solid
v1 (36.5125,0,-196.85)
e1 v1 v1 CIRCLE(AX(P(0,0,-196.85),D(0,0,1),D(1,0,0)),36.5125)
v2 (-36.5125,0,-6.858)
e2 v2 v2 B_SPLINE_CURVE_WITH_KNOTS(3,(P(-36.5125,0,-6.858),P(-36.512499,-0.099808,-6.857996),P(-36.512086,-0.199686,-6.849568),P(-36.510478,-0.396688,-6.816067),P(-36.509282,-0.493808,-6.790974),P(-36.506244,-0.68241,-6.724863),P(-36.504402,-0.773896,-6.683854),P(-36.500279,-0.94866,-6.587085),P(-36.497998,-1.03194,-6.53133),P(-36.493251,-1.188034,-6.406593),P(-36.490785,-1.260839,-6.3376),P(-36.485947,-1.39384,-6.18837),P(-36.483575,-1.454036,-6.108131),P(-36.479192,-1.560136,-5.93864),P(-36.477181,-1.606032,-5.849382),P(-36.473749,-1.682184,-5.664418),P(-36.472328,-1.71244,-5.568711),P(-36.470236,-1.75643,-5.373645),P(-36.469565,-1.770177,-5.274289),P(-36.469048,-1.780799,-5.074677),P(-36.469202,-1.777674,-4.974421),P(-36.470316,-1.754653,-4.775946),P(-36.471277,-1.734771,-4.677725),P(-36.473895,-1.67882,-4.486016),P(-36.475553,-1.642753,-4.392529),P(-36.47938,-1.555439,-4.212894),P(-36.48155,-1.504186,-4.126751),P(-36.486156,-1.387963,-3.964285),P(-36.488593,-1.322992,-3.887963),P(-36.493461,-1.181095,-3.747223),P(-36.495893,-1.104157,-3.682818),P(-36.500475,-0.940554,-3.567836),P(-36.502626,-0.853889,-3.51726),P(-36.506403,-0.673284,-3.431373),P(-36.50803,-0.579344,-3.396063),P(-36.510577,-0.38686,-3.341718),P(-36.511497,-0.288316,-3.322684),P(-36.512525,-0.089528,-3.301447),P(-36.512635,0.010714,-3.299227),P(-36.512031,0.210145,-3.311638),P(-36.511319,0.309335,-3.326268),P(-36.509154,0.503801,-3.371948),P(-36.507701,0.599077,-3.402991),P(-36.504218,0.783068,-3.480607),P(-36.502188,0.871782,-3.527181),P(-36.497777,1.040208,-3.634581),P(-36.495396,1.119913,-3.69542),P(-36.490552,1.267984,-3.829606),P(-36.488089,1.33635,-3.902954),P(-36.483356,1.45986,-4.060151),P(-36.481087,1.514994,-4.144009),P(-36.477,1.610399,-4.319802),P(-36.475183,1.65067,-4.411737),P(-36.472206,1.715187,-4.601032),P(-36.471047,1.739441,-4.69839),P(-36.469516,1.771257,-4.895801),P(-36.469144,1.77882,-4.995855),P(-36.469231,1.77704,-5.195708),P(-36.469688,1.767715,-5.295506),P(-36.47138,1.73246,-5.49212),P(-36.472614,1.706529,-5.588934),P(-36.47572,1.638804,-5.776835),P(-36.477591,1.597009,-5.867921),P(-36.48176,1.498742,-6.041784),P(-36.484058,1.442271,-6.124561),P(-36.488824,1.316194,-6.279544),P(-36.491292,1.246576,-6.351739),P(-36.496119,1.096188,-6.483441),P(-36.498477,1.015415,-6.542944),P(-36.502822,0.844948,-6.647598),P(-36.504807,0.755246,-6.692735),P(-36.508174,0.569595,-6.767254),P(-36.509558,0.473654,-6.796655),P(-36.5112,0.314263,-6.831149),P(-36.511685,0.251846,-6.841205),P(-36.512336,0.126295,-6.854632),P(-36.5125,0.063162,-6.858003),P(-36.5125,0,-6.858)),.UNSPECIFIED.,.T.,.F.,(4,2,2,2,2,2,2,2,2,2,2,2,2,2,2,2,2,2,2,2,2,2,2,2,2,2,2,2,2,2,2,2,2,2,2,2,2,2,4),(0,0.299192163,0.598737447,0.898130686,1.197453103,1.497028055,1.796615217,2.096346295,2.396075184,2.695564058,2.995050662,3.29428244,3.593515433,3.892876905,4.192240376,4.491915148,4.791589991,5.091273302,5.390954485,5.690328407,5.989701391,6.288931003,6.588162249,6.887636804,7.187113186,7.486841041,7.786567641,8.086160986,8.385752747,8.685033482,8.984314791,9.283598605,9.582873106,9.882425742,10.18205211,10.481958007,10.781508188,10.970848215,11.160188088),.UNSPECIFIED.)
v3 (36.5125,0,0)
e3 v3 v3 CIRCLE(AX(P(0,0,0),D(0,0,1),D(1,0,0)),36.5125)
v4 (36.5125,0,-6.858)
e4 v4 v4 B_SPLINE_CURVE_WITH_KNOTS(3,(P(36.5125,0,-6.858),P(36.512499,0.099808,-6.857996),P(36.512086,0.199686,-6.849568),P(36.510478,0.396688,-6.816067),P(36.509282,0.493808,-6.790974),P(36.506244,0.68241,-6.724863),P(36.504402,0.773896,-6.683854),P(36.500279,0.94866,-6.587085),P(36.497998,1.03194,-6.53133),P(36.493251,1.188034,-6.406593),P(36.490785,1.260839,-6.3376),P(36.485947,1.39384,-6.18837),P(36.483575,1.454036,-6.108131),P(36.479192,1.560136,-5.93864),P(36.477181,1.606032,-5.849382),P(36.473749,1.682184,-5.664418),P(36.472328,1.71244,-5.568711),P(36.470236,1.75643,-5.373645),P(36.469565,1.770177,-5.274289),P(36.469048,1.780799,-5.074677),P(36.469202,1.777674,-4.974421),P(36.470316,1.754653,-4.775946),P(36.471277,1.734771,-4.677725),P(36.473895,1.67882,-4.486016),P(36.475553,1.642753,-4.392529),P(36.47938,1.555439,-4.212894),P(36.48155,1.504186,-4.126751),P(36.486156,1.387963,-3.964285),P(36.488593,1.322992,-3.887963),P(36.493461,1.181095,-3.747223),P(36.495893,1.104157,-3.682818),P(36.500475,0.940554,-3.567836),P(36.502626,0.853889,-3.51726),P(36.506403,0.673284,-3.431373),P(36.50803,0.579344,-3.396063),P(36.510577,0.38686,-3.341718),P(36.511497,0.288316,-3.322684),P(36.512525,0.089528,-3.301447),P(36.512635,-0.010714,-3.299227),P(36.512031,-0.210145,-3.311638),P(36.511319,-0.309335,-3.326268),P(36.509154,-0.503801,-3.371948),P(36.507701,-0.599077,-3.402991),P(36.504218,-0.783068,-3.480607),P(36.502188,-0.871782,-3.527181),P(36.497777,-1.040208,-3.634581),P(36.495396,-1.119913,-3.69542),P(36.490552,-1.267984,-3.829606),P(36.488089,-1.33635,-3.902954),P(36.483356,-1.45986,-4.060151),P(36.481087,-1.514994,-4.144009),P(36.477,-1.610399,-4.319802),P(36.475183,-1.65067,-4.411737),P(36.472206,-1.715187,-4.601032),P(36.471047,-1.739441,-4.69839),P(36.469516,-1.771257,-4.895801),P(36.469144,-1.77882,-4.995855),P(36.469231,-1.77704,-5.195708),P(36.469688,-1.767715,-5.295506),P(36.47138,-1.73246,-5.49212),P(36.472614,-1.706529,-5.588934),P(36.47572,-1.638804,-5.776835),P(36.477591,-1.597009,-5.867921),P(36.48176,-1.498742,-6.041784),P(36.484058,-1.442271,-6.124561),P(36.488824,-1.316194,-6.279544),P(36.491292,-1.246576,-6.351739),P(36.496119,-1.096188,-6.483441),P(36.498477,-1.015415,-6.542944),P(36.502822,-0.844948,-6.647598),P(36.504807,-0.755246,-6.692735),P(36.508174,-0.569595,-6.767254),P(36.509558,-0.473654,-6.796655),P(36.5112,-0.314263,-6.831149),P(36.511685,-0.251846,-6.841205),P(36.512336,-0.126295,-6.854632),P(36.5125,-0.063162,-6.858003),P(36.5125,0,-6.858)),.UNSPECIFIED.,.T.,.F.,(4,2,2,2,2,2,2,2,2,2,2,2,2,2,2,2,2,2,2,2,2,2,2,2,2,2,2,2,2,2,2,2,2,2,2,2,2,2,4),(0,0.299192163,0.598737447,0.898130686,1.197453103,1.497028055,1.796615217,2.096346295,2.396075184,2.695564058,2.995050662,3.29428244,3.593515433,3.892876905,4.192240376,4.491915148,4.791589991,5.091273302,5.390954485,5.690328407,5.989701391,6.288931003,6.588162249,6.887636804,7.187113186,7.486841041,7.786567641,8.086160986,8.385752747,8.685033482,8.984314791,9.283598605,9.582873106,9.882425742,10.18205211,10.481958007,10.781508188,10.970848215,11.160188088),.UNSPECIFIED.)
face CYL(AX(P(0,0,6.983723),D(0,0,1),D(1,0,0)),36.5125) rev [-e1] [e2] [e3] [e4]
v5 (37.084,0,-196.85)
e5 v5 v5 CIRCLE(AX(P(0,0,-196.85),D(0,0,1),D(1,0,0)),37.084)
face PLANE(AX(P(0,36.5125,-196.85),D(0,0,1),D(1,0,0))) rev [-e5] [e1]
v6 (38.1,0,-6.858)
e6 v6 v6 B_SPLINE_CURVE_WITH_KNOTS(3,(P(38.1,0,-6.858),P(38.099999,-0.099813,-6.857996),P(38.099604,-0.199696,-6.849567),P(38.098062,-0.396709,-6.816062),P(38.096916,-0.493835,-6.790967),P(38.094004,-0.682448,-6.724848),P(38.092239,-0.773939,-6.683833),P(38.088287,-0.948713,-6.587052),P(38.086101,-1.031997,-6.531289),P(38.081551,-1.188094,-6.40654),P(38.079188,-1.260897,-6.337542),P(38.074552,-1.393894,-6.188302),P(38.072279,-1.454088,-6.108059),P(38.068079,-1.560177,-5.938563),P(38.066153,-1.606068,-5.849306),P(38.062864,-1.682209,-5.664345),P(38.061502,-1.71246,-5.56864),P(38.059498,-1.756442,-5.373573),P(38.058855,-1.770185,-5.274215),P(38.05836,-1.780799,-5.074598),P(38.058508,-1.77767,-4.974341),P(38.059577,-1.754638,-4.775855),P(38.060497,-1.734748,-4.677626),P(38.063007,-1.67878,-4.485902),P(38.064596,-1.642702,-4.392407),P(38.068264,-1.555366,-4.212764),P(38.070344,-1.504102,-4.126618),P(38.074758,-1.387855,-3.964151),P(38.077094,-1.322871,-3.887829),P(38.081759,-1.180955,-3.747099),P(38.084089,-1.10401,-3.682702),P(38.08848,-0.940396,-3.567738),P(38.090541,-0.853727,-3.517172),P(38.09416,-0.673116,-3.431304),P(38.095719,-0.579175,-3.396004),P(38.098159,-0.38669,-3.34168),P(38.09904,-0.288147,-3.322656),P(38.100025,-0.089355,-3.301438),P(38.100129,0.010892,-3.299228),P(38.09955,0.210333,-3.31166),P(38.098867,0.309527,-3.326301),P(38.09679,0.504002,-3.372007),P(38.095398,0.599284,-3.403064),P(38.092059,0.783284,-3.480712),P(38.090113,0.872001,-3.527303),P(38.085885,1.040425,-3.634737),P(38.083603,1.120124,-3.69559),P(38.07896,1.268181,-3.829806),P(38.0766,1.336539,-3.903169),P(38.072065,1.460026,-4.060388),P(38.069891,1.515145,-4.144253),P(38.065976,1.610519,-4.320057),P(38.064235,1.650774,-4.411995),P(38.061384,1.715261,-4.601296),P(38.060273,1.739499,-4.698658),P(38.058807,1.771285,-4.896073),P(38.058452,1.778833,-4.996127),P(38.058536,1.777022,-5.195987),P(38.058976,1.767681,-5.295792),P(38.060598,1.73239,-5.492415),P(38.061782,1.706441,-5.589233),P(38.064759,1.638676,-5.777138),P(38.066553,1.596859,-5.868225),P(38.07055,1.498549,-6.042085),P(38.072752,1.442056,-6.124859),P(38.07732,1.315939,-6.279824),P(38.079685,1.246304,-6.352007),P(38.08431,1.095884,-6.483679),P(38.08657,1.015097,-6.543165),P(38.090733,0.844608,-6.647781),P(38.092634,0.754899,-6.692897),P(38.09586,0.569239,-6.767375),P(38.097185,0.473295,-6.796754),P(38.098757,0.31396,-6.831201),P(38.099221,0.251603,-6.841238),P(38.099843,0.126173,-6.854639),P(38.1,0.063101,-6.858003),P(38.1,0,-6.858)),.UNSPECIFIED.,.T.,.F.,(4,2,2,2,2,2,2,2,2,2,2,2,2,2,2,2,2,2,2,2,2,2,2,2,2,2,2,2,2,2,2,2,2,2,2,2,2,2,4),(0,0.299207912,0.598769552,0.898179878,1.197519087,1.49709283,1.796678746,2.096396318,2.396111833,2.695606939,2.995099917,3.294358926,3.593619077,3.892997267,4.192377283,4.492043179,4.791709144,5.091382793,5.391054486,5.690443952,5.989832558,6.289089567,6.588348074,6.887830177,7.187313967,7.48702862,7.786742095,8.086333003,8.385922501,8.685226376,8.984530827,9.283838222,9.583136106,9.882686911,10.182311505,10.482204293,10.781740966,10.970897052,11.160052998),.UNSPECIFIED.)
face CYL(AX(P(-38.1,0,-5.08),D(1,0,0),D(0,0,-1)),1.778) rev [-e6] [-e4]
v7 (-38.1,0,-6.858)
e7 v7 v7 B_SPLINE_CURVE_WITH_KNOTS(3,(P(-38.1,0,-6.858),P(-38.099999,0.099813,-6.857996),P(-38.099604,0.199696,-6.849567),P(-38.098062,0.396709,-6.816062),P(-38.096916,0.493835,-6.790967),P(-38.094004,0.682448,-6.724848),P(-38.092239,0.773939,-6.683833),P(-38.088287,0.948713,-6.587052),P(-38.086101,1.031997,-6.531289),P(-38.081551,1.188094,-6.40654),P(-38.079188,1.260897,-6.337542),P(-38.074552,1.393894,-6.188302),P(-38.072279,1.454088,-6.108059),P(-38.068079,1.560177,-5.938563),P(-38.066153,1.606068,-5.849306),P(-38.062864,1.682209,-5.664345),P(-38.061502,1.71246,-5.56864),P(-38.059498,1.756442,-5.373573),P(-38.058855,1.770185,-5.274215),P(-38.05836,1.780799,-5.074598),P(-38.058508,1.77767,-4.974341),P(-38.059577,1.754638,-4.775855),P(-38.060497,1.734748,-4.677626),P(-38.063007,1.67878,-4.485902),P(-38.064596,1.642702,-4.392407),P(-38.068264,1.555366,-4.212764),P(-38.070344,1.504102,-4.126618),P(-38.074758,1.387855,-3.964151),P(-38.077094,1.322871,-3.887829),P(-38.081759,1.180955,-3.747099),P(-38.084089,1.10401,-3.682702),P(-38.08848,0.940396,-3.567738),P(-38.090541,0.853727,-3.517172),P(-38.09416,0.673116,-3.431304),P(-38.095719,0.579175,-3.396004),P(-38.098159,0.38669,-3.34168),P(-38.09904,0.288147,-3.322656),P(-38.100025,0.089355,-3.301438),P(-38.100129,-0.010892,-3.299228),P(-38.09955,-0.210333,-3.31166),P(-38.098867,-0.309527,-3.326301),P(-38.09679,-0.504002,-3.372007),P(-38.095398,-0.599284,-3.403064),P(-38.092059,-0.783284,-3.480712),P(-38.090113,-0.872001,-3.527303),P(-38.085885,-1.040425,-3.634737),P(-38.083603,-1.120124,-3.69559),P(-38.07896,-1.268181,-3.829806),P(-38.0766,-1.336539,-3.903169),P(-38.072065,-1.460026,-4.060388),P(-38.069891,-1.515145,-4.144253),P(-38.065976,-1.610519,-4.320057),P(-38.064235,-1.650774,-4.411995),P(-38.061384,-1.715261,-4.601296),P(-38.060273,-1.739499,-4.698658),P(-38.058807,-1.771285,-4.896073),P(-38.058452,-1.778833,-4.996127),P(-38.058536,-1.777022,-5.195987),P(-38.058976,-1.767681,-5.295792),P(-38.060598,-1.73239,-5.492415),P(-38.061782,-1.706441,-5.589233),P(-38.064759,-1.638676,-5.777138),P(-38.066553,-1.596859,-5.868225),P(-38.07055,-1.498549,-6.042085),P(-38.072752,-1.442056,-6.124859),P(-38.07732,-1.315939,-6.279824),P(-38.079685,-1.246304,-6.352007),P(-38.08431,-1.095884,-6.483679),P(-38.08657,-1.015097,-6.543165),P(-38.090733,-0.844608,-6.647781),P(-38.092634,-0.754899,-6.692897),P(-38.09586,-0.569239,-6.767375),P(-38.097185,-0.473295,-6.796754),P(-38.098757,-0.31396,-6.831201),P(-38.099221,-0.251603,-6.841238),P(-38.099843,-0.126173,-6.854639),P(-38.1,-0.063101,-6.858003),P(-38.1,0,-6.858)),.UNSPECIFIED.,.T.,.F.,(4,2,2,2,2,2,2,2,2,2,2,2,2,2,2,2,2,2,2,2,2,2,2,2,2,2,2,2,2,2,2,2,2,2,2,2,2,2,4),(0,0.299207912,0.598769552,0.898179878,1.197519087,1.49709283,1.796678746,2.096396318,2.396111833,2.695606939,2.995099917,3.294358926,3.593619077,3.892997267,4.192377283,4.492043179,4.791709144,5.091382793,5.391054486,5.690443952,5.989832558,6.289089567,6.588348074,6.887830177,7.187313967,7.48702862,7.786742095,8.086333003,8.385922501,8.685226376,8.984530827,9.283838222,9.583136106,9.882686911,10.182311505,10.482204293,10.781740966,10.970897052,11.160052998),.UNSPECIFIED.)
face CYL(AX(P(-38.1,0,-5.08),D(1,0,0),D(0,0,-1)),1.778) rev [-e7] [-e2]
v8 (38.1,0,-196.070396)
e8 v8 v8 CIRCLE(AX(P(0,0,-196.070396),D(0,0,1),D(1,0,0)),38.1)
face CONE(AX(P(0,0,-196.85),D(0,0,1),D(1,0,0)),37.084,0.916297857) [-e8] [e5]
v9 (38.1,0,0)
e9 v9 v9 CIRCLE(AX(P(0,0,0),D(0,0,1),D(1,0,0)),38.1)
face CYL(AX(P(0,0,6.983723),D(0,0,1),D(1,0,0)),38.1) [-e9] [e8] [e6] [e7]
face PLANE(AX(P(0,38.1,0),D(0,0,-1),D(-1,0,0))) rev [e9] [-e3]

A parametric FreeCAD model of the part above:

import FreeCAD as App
import Part
import Sketcher
from FreeCAD import Vector
Q = App.Units.Quantity


def add_polygon(sketch, points):
    """Adds a closed chain of lines whose ends are joined by coincident constraints."""
    first, n = sketch.GeometryCount, len(points)
    for a, b in zip(points, points[1:] + points[:1]):
        sketch.addGeometry(Part.LineSegment(App.Vector(*a, 0), App.Vector(*b, 0)), False)
    for i in range(n):
        sketch.addConstraint(Sketcher.Constraint("Coincident", first + i, 2, first + (i + 1) % n, 1))

doc = App.newDocument("Part")
body = doc.addObject("PartDesign::Body", "Body")

sketch1 = body.newObject("Sketcher::SketchObject", "Sketch")
sketch1.AttachmentSupport = (doc.getObject("YZ_Plane"), [""])
sketch1.MapMode = "FlatFace"
add_polygon(sketch1, [(36.5, 0), (36.5, -196.8), (37.1, -196.8), (38.1, -196.1), (38.1, 0)])
sketch1.addConstraint([
    Sketcher.Constraint("Vertical", 0),
    Sketcher.Constraint("Horizontal", 1),
    Sketcher.Constraint("Vertical", 3),
    Sketcher.Constraint("Horizontal", 4),
    Sketcher.Constraint("PointOnObject", 3, 2, -1),
    Sketcher.Constraint("DistanceY", 0, 2, 0, 1, Q("7.75 in")),
    Sketcher.Constraint("DistanceX", -1, 1, 2, 2, Q("1.5 in")),
    Sketcher.Constraint("Angle", 2, Q("37.5 deg")),
    Sketcher.Constraint("DistanceX", 4, 2, 4, 1, Q("0.0625 in")),
    Sketcher.Constraint("DistanceX", -1, 1, 1, 2, Q("1.46 in")),
])
revolution = body.newObject("PartDesign::Revolution", "Revolution")
revolution.Profile = sketch1
revolution.ReferenceAxis = (sketch1, ["V_Axis"])
revolution.Angle = 360

sketch2 = body.newObject("Sketcher::SketchObject", "Sketch001")
sketch2.AttachmentSupport = (doc.getObject("YZ_Plane"), [""])
sketch2.MapMode = "FlatFace"
sketch2.addGeometry(Part.Circle(Vector(0, -5.1, 0), Vector(0, 0, 1), 1.8), False)
sketch2.addConstraint([
    Sketcher.Constraint("PointOnObject", 0, 3, -2),
    Sketcher.Constraint("Diameter", 0, Q("0.14 in")),
    Sketcher.Constraint("DistanceY", 0, 3, -1, 1, Q("0.2 in")),
])
pocket1 = body.newObject("PartDesign::Pocket", "Pocket")
pocket1.Profile = sketch2
pocket1.Type = "ThroughAll"
pocket1.Midplane = True

doc.recompute()
